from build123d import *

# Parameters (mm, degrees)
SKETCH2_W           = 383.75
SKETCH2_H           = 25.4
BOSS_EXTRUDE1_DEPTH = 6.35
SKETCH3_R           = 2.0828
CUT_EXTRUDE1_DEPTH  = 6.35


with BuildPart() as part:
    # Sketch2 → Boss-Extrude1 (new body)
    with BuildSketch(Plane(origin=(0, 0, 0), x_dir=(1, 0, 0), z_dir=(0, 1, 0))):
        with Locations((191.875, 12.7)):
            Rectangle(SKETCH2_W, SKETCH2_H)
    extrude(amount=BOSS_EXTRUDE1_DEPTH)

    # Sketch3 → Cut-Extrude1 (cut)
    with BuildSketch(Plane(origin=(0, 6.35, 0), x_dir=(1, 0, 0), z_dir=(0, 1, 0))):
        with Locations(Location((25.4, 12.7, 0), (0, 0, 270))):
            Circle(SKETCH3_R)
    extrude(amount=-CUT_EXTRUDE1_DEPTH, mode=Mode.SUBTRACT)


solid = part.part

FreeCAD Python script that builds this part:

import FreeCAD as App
import Part
import Sketcher
Q = App.Units.Quantity

doc = App.newDocument("Part")
params = doc.addObject("Spreadsheet::Sheet", "Params")
for row, (alias, value) in enumerate([
    ("sketch1_height", "1 in"),
    ("pad1_length", "0.25 in"),
    ("sketch2_diameter", "0.164 in"),
    ("pocket1_length", "0.25 in"),
], start=1):
    params.set(f"A{row}", alias)
    params.set(f"B{row}", "=" + value)
    params.setAlias(f"B{row}", alias)

body = doc.addObject("PartDesign::Body", "Body")

# Sketch on XZ plane
sketch1 = doc.addObject("Sketcher::SketchObject", "Sketch")
body.addObject(sketch1)
sketch1.AttachmentSupport = (doc.XZ_Plane, [""])
sketch1.MapMode = "FlatFace"
sketch1.addGeometry([
    Part.LineSegment(App.Vector(0, -25, 0), App.Vector(0, 0, 0)),
    Part.LineSegment(App.Vector(0, 0, 0), App.Vector(384, 0, 0)),
    Part.LineSegment(App.Vector(384, 0, 0), App.Vector(384, -25, 0)),
    Part.LineSegment(App.Vector(384, -25, 0), App.Vector(0, -25, 0)),
], False)
sketch1.addConstraint([
    Sketcher.Constraint("Coincident", 0, 2, 1, 1),
    Sketcher.Constraint("Coincident", 1, 2, 2, 1),
    Sketcher.Constraint("Coincident", 2, 2, 3, 1),
    Sketcher.Constraint("Coincident", 3, 2, 0, 1),
    Sketcher.Constraint("Vertical", 0),
    Sketcher.Constraint("Horizontal", 1),
    Sketcher.Constraint("Vertical", 2),
    Sketcher.Constraint("Horizontal", 3),
    Sketcher.Constraint("Coincident", 0, 2, -1, 1),
    Sketcher.Constraint("DistanceY", 0, 1, 0, 2, Q("1 in")),
    Sketcher.Constraint("DistanceX", 1, 1, 1, 2, 383.75),
])
sketch1.setExpression("Constraints[9]", "Params.sketch1_height")
pad1 = doc.addObject("PartDesign::Pad", "Pad")
body.addObject(pad1)
pad1.Profile = sketch1
pad1.setExpression("Length", "Params.pad1_length")
pad1.Reversed = True

# Sketch on XZ plane
sketch2 = doc.addObject("Sketcher::SketchObject", "Sketch001")
body.addObject(sketch2)
sketch2.AttachmentSupport = (doc.XZ_Plane, [""])
sketch2.MapMode = "FlatFace"
sketch2.AttachmentOffset = App.Placement(App.Vector(0, 0, -0.25 * 25.4), App.Rotation())
sketch2.addGeometry(Part.Circle(App.Vector(25.4, -12.7, 0), App.Vector(0, 0, 1), 2.1), False)
sketch2.addConstraint([
    Sketcher.Constraint("Diameter", 0, Q("0.164 in")),
    Sketcher.Constraint("DistanceX", -1, 1, 0, 3, Q("1 in")),
    Sketcher.Constraint("DistanceY", 0, 3, -1, 1, Q("0.5 in")),
])
sketch2.setExpression("Constraints[0]", "Params.sketch2_diameter")
pocket1 = doc.addObject("PartDesign::Pocket", "Pocket")
body.addObject(pocket1)
pocket1.Profile = sketch2
pocket1.setExpression("Length", "Params.pocket1_length")
pocket1.Reversed = True

doc.recompute()
